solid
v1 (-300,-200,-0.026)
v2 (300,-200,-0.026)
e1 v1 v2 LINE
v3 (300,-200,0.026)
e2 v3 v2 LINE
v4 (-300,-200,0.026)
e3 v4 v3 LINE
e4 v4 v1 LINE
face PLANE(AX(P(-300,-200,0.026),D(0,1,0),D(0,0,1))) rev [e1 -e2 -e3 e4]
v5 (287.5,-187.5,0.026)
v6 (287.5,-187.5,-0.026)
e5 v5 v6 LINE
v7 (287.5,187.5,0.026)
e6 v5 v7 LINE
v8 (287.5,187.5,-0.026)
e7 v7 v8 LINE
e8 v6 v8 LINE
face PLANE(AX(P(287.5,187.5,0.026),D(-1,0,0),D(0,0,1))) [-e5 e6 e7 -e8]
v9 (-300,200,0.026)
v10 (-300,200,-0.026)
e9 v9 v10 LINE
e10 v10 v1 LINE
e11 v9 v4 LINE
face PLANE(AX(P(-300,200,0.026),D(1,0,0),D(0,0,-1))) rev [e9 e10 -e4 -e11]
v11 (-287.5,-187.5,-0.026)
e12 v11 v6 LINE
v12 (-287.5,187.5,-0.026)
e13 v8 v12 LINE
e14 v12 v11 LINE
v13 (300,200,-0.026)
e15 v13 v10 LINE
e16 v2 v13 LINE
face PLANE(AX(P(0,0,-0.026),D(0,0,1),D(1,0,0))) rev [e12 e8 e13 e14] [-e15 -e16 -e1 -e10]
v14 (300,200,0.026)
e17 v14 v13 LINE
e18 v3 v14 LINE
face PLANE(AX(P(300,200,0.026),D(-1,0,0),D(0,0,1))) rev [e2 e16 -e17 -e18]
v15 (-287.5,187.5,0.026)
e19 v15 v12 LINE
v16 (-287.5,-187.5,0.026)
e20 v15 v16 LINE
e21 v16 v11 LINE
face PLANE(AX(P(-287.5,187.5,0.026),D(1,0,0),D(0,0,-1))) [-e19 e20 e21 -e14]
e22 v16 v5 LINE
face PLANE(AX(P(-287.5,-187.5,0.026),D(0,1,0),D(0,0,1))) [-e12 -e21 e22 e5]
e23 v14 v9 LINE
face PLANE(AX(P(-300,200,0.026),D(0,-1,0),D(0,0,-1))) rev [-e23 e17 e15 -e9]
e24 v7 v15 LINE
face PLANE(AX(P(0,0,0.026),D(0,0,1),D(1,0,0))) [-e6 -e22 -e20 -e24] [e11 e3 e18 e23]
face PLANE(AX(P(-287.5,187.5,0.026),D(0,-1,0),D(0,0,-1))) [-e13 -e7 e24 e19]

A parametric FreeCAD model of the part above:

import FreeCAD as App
import Part
import Sketcher
Q = App.Units.Quantity

doc = App.newDocument("Part")
body = doc.addObject("PartDesign::Body", "Body")

# Sketch on XY plane
sketch1 = body.newObject("Sketcher::SketchObject", "Sketch")
sketch1.AttachmentSupport = (doc.getObject("XY_Plane"), [""])
sketch1.MapMode = "FlatFace"
sketch1.addGeometry(Part.LineSegment(App.Vector(-300, 200, 0), App.Vector(-300, -200, 0)), False)
sketch1.addGeometry(Part.LineSegment(App.Vector(-300, -200, 0), App.Vector(300, -200, 0)), False)
sketch1.addGeometry(Part.LineSegment(App.Vector(300, -200, 0), App.Vector(300, 200, 0)), False)
sketch1.addGeometry(Part.LineSegment(App.Vector(300, 200, 0), App.Vector(-300, 200, 0)), False)
sketch1.addGeometry(Part.LineSegment(App.Vector(287.5, -187.5, 0), App.Vector(-287.5, -187.5, 0)), False)
sketch1.addGeometry(Part.LineSegment(App.Vector(-287.5, -187.5, 0), App.Vector(-287.5, 187.5, 0)), False)
sketch1.addGeometry(Part.LineSegment(App.Vector(-287.5, 187.5, 0), App.Vector(287.5, 187.5, 0)), False)
sketch1.addGeometry(Part.LineSegment(App.Vector(287.5, 187.5, 0), App.Vector(287.5, -187.5, 0)), False)
sketch1.addConstraint(Sketcher.Constraint("Coincident", 0, 2, 1, 1))
sketch1.addConstraint(Sketcher.Constraint("Coincident", 1, 2, 2, 1))
sketch1.addConstraint(Sketcher.Constraint("Coincident", 2, 2, 3, 1))
sketch1.addConstraint(Sketcher.Constraint("Coincident", 3, 2, 0, 1))
sketch1.addConstraint(Sketcher.Constraint("Coincident", 4, 2, 5, 1))
sketch1.addConstraint(Sketcher.Constraint("Coincident", 5, 2, 6, 1))
sketch1.addConstraint(Sketcher.Constraint("Coincident", 6, 2, 7, 1))
sketch1.addConstraint(Sketcher.Constraint("Coincident", 7, 2, 4, 1))
sketch1.addConstraint(Sketcher.Constraint("Vertical", 0))
sketch1.addConstraint(Sketcher.Constraint("Horizontal", 1))
sketch1.addConstraint(Sketcher.Constraint("Vertical", 2))
sketch1.addConstraint(Sketcher.Constraint("Horizontal", 3))
sketch1.addConstraint(Sketcher.Constraint("Horizontal", 4))
sketch1.addConstraint(Sketcher.Constraint("Vertical", 5))
sketch1.addConstraint(Sketcher.Constraint("Horizontal", 6))
sketch1.addConstraint(Sketcher.Constraint("Vertical", 7))
sketch1.addConstraint(Sketcher.Constraint("Symmetric", 0, 2, 2, 2, -1, 1))
sketch1.addConstraint(Sketcher.Constraint("Symmetric", 4, 2, 6, 2, -1, 1))
sketch1.addConstraint(Sketcher.Constraint("DistanceX", 1, 1, 1, 2, Q("600 mm")))
sketch1.addConstraint(Sketcher.Constraint("DistanceX", 4, 2, 4, 1, Q("575 mm")))
sketch1.addConstraint(Sketcher.Constraint("DistanceY", 0, 2, 0, 1, Q("400 mm")))
sketch1.addConstraint(Sketcher.Constraint("DistanceY", 5, 1, 5, 2, Q("375 mm")))
pad1 = body.newObject("PartDesign::Pad", "Pad")
pad1.Profile = sketch1
pad1.Length = 0.052
pad1.Midplane = True

doc.recompute()
